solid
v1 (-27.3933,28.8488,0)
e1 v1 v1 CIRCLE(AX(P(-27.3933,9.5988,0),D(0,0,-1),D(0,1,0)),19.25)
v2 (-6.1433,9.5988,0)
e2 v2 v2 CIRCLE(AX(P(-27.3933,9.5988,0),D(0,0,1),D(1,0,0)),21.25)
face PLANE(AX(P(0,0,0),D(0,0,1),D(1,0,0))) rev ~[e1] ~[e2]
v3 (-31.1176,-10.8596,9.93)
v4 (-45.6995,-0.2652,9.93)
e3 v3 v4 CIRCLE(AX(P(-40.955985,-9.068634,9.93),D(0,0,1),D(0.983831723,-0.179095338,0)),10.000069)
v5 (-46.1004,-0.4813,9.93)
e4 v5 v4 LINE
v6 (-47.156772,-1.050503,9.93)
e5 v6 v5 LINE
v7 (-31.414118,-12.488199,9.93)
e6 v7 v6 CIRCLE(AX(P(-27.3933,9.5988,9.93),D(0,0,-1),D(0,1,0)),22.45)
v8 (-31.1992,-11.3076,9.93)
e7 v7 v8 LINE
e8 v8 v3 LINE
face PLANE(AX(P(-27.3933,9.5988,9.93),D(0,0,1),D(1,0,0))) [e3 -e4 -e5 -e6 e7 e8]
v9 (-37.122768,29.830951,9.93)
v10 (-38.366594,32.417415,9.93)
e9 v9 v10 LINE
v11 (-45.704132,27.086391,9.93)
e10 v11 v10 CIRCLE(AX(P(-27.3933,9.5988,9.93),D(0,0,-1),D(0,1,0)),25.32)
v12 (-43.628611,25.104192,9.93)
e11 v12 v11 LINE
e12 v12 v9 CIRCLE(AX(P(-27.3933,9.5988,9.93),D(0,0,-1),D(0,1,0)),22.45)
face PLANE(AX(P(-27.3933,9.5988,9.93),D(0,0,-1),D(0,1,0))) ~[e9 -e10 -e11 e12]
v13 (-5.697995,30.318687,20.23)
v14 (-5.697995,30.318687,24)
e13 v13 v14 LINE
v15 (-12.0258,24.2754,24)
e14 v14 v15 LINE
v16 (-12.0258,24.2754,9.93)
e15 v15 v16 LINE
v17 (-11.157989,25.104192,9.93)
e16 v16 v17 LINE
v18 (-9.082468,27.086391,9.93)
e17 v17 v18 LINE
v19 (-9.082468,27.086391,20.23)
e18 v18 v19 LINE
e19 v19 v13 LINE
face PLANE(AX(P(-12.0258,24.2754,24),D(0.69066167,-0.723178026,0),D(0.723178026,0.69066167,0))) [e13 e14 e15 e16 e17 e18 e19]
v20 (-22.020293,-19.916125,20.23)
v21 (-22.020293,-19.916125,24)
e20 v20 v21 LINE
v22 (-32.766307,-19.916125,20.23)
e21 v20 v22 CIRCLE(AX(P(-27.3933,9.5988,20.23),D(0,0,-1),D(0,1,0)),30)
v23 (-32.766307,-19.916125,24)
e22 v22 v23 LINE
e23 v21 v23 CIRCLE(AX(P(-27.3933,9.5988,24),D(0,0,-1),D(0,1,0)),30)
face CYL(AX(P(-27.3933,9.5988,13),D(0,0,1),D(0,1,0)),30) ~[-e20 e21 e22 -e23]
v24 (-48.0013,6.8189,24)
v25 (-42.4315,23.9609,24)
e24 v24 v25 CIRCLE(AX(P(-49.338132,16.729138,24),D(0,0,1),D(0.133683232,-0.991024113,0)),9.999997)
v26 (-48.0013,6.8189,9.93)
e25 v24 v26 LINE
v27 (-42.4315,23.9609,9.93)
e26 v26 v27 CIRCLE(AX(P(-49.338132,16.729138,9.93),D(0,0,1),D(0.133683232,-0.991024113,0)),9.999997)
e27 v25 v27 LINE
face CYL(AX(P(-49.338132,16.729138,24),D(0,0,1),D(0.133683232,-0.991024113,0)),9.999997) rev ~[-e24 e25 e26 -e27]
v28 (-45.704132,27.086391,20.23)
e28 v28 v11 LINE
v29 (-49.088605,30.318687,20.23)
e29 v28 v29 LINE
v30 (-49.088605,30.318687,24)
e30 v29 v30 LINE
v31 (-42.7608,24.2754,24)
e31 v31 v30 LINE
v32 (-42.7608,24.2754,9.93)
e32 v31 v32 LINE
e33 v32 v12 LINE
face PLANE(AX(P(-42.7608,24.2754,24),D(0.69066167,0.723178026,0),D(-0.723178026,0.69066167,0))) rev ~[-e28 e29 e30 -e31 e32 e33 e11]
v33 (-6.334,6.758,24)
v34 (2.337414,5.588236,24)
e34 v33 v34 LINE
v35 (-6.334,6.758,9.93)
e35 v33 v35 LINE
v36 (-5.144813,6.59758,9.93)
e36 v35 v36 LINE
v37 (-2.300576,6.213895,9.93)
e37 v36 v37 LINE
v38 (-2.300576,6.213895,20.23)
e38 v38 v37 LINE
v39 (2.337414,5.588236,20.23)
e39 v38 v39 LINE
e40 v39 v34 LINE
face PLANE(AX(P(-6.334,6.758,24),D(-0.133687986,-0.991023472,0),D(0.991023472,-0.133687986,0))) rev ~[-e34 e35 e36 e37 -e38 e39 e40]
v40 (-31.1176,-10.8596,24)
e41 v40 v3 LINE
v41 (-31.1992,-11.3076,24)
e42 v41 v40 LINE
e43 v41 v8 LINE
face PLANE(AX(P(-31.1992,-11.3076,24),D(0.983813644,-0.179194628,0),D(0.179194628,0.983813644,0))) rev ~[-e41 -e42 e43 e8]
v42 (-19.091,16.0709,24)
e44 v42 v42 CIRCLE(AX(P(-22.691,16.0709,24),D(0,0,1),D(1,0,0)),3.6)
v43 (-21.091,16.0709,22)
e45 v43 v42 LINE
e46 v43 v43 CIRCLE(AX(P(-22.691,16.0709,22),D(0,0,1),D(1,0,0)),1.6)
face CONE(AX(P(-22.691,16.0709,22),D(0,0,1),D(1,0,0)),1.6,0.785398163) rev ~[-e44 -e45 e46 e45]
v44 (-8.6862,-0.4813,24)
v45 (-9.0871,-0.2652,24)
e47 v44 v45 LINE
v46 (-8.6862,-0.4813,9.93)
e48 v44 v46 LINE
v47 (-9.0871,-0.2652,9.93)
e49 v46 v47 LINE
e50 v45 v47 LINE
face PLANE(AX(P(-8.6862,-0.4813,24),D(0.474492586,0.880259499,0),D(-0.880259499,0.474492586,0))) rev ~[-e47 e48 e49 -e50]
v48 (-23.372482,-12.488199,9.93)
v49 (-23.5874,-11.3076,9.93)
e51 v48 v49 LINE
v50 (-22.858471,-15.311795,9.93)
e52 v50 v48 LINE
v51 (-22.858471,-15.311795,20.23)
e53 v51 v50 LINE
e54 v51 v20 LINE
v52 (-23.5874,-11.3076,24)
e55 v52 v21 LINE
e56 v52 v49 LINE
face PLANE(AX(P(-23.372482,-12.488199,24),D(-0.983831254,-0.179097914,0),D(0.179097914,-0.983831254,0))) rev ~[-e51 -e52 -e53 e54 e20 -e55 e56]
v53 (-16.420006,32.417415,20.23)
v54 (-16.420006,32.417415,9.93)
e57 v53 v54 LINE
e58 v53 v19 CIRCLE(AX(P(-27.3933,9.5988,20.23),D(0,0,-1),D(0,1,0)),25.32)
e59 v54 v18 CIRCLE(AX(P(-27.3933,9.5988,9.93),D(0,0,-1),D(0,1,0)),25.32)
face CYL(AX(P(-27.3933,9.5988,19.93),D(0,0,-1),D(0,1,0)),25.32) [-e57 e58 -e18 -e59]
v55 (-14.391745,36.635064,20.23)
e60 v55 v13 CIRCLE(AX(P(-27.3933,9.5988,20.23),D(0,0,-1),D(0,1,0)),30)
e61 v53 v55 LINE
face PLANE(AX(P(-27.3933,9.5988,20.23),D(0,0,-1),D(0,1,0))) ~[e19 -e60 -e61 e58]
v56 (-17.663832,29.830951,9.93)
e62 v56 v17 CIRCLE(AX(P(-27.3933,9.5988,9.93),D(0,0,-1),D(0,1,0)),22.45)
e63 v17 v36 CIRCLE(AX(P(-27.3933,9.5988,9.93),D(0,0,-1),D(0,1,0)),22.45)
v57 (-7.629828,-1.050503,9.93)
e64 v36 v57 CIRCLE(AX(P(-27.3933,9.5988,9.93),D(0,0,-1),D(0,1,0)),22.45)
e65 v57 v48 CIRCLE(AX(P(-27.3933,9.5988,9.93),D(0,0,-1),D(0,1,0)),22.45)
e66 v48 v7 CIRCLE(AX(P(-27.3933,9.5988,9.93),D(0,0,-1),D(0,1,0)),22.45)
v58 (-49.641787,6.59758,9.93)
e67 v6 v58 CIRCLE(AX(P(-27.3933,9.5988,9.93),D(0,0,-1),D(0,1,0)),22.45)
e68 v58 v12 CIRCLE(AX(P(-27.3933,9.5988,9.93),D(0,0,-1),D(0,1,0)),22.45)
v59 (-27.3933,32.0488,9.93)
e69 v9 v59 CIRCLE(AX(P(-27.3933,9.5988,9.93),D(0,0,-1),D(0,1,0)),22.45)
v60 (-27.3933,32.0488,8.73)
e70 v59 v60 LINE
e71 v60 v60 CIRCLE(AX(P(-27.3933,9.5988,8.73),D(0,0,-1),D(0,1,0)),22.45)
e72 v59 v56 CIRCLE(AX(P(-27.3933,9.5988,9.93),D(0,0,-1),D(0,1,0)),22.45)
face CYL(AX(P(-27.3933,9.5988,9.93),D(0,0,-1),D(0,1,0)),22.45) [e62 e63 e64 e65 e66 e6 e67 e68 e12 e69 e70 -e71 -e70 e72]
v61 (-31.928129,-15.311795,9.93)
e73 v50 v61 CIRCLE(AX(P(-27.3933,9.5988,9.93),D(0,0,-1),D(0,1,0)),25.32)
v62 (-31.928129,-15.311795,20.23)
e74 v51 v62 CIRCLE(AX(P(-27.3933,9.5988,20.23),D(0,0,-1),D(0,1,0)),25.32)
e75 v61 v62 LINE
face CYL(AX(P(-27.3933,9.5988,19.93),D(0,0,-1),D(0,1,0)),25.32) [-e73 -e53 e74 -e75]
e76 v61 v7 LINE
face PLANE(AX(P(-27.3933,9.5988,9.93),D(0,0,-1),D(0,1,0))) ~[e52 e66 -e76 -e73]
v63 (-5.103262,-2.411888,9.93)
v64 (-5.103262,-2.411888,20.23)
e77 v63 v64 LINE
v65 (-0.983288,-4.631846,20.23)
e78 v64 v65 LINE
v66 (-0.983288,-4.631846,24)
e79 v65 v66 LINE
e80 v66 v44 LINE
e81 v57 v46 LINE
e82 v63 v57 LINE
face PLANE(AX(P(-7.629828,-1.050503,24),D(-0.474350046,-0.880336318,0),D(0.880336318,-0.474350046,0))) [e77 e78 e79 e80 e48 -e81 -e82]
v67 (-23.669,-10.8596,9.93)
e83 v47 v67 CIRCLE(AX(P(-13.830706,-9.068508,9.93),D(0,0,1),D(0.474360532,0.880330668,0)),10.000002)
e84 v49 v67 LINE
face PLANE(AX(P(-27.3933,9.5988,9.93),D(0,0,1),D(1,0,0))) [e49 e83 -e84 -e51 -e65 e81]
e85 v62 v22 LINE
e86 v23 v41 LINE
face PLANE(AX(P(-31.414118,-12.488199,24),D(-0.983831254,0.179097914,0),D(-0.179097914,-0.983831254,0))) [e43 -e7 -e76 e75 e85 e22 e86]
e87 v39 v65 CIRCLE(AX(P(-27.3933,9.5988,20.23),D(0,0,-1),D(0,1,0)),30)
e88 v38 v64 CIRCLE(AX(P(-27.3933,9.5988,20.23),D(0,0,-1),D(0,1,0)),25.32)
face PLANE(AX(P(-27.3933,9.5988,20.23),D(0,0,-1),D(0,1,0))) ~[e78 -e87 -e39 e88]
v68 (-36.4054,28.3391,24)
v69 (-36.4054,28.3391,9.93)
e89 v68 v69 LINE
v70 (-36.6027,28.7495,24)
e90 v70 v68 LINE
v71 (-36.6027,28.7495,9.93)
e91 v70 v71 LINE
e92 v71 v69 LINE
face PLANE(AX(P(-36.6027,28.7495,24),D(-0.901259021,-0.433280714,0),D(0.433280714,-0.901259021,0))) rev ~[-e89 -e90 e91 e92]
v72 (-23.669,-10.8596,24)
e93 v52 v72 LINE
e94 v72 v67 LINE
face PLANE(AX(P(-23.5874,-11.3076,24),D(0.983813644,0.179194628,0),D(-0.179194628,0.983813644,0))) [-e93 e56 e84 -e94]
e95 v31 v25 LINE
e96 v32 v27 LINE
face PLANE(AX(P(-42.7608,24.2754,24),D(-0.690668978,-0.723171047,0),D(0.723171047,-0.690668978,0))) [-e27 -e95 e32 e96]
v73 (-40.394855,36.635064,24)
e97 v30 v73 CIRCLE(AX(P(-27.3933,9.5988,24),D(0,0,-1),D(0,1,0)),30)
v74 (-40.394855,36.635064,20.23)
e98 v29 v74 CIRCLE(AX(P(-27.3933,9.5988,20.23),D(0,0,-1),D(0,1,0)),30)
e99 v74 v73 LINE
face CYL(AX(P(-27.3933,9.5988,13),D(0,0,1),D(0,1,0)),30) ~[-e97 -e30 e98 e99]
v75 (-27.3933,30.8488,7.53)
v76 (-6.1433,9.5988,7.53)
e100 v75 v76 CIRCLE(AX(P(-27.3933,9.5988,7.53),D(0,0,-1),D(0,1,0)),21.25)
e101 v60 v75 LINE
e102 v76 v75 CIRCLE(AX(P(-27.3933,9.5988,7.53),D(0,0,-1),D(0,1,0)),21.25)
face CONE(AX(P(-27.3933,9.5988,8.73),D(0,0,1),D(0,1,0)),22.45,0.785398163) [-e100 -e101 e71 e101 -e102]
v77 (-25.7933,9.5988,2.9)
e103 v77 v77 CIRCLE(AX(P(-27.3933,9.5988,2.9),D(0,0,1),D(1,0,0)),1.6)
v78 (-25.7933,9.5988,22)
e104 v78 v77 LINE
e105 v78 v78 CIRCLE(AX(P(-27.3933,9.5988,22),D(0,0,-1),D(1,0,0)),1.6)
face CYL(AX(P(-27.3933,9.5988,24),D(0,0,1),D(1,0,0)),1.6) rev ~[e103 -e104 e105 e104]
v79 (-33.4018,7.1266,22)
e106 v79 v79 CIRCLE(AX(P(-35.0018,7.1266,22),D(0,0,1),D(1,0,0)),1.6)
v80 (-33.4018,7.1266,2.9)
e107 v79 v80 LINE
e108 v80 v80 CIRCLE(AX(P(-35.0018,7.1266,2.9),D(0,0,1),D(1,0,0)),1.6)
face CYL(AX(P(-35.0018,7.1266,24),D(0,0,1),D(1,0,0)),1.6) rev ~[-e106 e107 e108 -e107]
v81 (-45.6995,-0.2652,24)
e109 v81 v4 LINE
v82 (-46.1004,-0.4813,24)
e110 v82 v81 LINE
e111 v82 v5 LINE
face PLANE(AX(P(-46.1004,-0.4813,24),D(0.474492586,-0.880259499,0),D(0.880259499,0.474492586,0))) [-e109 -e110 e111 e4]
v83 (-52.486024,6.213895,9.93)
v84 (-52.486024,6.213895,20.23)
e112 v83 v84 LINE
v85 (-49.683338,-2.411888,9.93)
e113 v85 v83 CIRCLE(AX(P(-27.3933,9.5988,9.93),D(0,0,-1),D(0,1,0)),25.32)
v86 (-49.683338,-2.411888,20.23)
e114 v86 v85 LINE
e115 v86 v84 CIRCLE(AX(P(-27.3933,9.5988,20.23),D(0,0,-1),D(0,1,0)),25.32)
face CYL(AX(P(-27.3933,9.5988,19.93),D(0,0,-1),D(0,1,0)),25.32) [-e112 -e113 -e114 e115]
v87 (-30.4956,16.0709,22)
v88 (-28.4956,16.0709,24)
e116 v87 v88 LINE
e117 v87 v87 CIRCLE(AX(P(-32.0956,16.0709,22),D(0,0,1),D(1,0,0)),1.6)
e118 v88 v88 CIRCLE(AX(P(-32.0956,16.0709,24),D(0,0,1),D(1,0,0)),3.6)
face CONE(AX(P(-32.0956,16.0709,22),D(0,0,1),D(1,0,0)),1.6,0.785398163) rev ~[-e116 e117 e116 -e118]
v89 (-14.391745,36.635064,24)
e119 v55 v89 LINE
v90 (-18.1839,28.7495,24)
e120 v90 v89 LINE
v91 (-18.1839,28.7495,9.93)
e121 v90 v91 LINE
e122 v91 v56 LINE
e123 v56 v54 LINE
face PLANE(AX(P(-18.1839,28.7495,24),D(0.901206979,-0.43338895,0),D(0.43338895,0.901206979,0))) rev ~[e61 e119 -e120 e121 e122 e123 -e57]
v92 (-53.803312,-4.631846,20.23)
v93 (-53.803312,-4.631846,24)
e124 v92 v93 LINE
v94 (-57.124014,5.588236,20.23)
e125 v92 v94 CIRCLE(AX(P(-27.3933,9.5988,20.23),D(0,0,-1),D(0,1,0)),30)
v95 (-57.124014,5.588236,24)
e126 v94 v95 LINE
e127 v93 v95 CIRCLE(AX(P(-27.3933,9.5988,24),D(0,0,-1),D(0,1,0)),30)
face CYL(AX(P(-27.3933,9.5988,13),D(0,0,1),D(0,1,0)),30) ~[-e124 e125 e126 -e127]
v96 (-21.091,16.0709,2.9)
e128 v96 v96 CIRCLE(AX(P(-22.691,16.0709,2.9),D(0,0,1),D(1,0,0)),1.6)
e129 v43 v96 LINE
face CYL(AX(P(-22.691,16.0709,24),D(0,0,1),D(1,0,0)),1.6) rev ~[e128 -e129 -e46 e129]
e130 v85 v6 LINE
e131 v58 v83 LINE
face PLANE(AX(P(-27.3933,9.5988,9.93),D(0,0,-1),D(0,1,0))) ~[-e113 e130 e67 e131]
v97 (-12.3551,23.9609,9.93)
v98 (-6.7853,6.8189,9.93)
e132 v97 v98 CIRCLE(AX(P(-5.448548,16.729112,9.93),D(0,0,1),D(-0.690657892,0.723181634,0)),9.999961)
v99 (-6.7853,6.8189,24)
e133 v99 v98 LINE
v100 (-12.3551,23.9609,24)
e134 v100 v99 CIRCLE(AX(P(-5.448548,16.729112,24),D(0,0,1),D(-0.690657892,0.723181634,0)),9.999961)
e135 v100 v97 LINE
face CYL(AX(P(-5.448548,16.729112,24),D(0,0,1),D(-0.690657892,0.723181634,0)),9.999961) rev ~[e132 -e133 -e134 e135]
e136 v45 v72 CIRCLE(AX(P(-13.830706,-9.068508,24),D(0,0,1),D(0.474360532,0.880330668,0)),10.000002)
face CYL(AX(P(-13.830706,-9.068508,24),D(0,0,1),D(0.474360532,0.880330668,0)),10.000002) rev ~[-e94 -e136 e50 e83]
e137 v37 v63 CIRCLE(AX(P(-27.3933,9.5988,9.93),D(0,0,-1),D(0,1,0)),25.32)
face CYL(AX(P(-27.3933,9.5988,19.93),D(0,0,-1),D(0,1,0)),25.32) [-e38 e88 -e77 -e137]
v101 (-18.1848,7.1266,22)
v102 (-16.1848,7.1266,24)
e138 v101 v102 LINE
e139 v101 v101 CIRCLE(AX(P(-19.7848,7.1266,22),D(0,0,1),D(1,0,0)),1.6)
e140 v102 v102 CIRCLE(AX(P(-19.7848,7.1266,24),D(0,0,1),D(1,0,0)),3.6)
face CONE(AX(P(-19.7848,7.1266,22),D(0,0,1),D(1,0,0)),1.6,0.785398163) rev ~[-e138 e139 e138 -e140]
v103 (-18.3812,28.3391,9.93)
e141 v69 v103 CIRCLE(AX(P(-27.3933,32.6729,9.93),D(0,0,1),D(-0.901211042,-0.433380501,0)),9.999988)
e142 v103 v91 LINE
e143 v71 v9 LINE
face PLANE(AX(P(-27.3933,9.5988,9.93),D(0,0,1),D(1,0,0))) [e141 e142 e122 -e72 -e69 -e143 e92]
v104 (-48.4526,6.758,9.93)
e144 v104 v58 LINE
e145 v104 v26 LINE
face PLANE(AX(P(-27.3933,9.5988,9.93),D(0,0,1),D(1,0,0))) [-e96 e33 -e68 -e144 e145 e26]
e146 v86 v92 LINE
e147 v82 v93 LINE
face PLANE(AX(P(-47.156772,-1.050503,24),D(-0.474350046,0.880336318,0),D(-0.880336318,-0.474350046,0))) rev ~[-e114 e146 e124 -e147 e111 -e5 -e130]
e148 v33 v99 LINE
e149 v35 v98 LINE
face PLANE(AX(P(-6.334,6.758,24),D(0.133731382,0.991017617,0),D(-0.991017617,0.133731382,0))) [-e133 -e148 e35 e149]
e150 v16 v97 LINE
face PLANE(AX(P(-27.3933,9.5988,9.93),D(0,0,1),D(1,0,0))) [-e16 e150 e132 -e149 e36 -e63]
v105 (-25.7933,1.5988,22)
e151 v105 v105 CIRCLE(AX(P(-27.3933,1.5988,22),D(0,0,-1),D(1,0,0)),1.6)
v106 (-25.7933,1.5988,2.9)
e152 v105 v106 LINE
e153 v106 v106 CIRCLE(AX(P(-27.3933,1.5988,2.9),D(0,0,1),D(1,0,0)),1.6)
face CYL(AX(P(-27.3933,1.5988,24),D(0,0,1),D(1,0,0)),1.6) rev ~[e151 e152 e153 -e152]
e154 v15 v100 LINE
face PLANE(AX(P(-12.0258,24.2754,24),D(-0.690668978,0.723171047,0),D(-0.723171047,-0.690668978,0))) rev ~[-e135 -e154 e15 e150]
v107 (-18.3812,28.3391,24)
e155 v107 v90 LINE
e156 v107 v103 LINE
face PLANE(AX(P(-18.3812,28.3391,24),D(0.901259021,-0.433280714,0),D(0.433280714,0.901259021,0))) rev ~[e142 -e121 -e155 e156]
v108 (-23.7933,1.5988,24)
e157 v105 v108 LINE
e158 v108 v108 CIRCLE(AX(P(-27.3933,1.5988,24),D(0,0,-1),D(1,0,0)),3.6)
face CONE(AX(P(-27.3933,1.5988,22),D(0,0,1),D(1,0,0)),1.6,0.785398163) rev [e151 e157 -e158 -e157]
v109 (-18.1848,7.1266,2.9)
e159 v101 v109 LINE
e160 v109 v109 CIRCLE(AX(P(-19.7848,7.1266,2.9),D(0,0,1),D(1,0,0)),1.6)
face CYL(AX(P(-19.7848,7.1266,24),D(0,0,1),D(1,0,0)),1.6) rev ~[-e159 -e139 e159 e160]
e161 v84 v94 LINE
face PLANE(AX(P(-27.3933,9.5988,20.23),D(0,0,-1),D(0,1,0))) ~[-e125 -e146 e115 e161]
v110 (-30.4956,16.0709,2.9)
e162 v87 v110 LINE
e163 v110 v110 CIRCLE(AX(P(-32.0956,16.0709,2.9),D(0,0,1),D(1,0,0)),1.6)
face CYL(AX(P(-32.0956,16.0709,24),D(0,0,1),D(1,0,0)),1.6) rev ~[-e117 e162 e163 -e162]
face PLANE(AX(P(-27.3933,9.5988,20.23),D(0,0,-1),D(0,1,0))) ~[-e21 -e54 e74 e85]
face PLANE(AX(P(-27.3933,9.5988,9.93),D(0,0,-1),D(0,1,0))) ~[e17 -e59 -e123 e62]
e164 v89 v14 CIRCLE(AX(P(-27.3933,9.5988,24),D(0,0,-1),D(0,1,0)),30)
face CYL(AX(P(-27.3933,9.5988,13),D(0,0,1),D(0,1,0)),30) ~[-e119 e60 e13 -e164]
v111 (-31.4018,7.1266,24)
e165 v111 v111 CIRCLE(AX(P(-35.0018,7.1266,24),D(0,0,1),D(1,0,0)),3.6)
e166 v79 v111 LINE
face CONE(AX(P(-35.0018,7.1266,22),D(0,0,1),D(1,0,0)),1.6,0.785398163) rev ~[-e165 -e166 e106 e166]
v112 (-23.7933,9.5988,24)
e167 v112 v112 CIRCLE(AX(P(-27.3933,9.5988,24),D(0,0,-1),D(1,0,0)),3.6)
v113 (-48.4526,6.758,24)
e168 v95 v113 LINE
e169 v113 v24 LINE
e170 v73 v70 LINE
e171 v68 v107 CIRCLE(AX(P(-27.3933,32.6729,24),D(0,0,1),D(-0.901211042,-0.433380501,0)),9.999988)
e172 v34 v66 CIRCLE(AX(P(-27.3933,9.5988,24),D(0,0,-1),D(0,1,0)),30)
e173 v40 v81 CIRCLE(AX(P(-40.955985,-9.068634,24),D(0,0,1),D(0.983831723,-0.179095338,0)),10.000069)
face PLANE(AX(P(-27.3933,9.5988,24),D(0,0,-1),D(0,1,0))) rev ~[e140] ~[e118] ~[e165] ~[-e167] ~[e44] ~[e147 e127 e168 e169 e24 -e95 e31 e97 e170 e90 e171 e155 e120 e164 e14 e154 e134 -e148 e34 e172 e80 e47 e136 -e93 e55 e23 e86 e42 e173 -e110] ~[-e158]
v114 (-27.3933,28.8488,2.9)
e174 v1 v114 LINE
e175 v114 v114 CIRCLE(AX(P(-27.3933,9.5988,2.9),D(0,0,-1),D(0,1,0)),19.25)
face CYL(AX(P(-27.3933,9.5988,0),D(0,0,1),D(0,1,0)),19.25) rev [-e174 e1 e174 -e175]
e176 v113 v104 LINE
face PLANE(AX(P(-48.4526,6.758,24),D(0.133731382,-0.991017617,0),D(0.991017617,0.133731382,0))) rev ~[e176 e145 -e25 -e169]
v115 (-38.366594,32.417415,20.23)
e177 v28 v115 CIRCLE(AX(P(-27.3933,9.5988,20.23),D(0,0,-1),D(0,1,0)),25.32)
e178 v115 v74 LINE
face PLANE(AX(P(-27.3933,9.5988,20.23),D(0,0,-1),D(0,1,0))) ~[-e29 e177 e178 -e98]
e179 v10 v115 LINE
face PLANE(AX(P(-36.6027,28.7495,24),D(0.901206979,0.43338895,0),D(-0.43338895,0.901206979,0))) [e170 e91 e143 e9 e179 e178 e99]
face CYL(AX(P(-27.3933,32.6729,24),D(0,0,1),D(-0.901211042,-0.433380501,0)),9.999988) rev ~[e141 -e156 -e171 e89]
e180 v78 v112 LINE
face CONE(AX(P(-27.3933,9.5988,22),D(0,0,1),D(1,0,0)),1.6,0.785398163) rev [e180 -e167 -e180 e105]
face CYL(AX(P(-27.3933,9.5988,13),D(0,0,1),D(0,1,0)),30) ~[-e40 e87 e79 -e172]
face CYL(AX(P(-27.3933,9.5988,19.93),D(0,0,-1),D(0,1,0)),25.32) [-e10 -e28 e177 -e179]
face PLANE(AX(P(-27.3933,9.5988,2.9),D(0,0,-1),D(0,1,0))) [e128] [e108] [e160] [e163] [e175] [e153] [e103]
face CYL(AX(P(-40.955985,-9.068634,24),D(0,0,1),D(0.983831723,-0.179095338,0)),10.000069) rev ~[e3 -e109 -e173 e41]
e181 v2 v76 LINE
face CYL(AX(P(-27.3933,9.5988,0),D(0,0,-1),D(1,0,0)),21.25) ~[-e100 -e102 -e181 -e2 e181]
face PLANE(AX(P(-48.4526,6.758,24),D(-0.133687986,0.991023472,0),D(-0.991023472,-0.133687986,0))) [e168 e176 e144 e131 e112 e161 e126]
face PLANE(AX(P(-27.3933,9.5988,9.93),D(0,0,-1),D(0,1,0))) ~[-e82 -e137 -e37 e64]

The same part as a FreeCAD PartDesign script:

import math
import FreeCAD as App
import Part
import Sketcher
Q = App.Units.Quantity


def edges_at(feature, points):
    """Names of the edges that pass closest to the given points."""
    edges = feature.Shape.Edges
    near = lambda p: min(range(len(edges)), key=lambda i: edges[i].distToShape(Part.Vertex(*p))[0])
    return sorted({f"Edge{near(p) + 1}" for p in points})


def add_polygon(sketch, points):
    """Adds a closed chain of lines whose ends are joined by coincident constraints."""
    first, n = sketch.GeometryCount, len(points)
    for a, b in zip(points, points[1:] + points[:1]):
        sketch.addGeometry(Part.LineSegment(App.Vector(*a, 0), App.Vector(*b, 0)), False)
    for i in range(n):
        sketch.addConstraint(Sketcher.Constraint("Coincident", first + i, 2, first + (i + 1) % n, 1))

doc = App.newDocument("Part")
body = doc.addObject("PartDesign::Body", "Body")

sketch1 = body.newObject("Sketcher::SketchObject", "Sketch")
sketch1.AttachmentSupport = (doc.getObject("XY_Plane"), [""])
sketch1.MapMode = "FlatFace"
sketch1.addGeometry(Part.Circle(App.Vector(-27, 10, 0), App.Vector(0, 0, 1), 21), False)
sketch1.addConstraint([
    Sketcher.Constraint("Diameter", 0, Q("42.5 mm")),
    Sketcher.Constraint("DistanceX", 0, 3, -1, 1, Q("27.3933 mm")),
    Sketcher.Constraint("DistanceY", -1, 1, 0, 3, Q("9.5988 mm")),
])
pad1 = body.newObject("PartDesign::Pad", "Pad")
pad1.Profile = sketch1
pad1.Length = 13

sketch2 = body.newObject("Sketcher::SketchObject", "Sketch001")
sketch2.AttachmentSupport = (doc.getObject("YZ_Plane"), [""])
sketch2.MapMode = "FlatFace"
sketch2.AttachmentOffset = App.Placement(App.Vector(0, 0, -27.3933), App.Rotation())
add_polygon(sketch2, [(32, 9.9), (32, 8.7), (30.8, 7.5), (30.8, 13), (9.6, 13), (9.6, 24), (39.6, 24), (39.6, 20.2), (34.9, 20.2), (34.9, 9.9)])
sketch2.addGeometry(Part.LineSegment(App.Vector(9.6, 24, 0), App.Vector(9.6, 7.5, 0)), True)
sketch2.addConstraint([
    Sketcher.Constraint("Vertical", 0),
    Sketcher.Constraint("Vertical", 2),
    Sketcher.Constraint("Horizontal", 3),
    Sketcher.Constraint("Vertical", 4),
    Sketcher.Constraint("Horizontal", 5),
    Sketcher.Constraint("Vertical", 6),
    Sketcher.Constraint("Horizontal", 7),
    Sketcher.Constraint("Vertical", 8),
    Sketcher.Constraint("Horizontal", 9),
    Sketcher.Constraint("Vertical", 10),
    Sketcher.Constraint("Coincident", 10, 1, 4, 2),
    Sketcher.Constraint("Horizontal", 1, 2, 10, 2),
    Sketcher.Constraint("DistanceY", 4, 1, 4, 2, Q("11 mm")),
    Sketcher.Constraint("DistanceX", 5, 1, 5, 2, Q("30 mm")),
    Sketcher.Constraint("Angle", 1, Q("-135 deg")),
    Sketcher.Constraint("DistanceY", 0, 2, 0, 1, Q("1.2 mm")),
    Sketcher.Constraint("DistanceY", 8, 2, 8, 1, Q("10.3 mm")),
    Sketcher.Constraint("DistanceY", -1, 1, 2, 2, Q("13 mm")),
    Sketcher.Constraint("DistanceX", 3, 2, 3, 1, Q("21.25 mm")),
    Sketcher.Constraint("DistanceX", 7, 2, 7, 1, Q("4.68 mm")),
    Sketcher.Constraint("DistanceX", 9, 2, 9, 1, Q("2.87 mm")),
    Sketcher.Constraint("DistanceY", 2, 1, 2, 2, Q("5.47 mm")),
    Sketcher.Constraint("DistanceX", -1, 1, 0, 2, Q("32.0488 mm")),
])
revolution = body.newObject("PartDesign::Revolution", "Revolution")
revolution.Profile = sketch2
revolution.ReferenceAxis = (sketch2, ["Axis0"])
revolution.Angle = 360

sketch3 = body.newObject("Sketcher::SketchObject", "Sketch002")
sketch3.AttachmentSupport = (doc.getObject("XY_Plane"), [""])
sketch3.MapMode = "FlatFace"
sketch3.AttachmentOffset = App.Placement(App.Vector(0, 0, 24), App.Rotation())
sketch3.addGeometry([
    Part.LineSegment(App.Vector(-6.334, 6.758, 0), App.Vector(7.2925, 4.9198, 0)),
    Part.ArcOfCircle(Part.Circle(App.Vector(-27.3933, 9.5988, 0), App.Vector(0, 0, 1), 34.999955), math.radians(-7.682635), math.radians(9.440146)),
    Part.LineSegment(App.Vector(7.1327, 15.3394, 0), App.Vector(2.701, 13.8995, 0)),
    Part.ArcOfCircle(Part.Circle(App.Vector(-27.390009, 9.599564, 0), App.Vector(0, 0, 1), 30.396682), math.radians(8.13238), math.radians(27.8687)),
    Part.LineSegment(App.Vector(-0.5187, 23.8084, 0), App.Vector(3.9131, 25.2484, 0)),
    Part.ArcOfCircle(Part.Circle(App.Vector(-27.3933, 9.5988, 0), App.Vector(0, 0, 1), 34.999955), math.radians(26.55978), math.radians(43.682593)),
    Part.LineSegment(App.Vector(-2.0821, 33.772, 0), App.Vector(-12.0258, 24.2754, 0)),
    Part.LineSegment(App.Vector(-12.0258, 24.2754, 0), App.Vector(-12.3551, 23.9609, 0)),
    Part.ArcOfCircle(Part.Circle(App.Vector(-5.4485, 16.7291, 0), App.Vector(0, 0, 1), 10.000003), math.radians(133.682361), math.radians(262.317668)),
    Part.LineSegment(App.Vector(-6.7853, 6.8189, 0), App.Vector(-6.334, 6.758, 0)),
    Part.LineSegment(App.Vector(-18.1839, 28.7495, 0), App.Vector(-12.2248, 41.1411, 0)),
    Part.ArcOfCircle(Part.Circle(App.Vector(-27.3933, 9.5988, 0), App.Vector(0, 0, 1), 34.999955), math.radians(64.317382), math.radians(81.44028)),
    Part.LineSegment(App.Vector(-22.1839, 44.2089, 0), App.Vector(-22.1839, 39.5491, 0)),
    Part.ArcOfCircle(Part.Circle(App.Vector(-27.3933, 9.5988, 0), App.Vector(0, 0, 1), 30.399972), math.radians(80.132982), math.radians(99.867018)),
    Part.LineSegment(App.Vector(-32.6027, 39.5491, 0), App.Vector(-32.6027, 44.2089, 0)),
    Part.ArcOfCircle(Part.Circle(App.Vector(-27.3933, 9.5988, 0), App.Vector(0, 0, 1), 35.000061), math.radians(98.55972), math.radians(115.682618)),
    Part.LineSegment(App.Vector(-42.5618, 41.1411, 0), App.Vector(-36.6027, 28.7495, 0)),
    Part.LineSegment(App.Vector(-36.6027, 28.7495, 0), App.Vector(-36.4054, 28.3391, 0)),
    Part.ArcOfCircle(Part.Circle(App.Vector(-27.3933, 32.6729, 0), App.Vector(0, 0, 1), 9.999988), math.radians(-154.317713), math.radians(-25.682287)),
    Part.LineSegment(App.Vector(-18.3812, 28.3391, 0), App.Vector(-18.1839, 28.7495, 0)),
    Part.LineSegment(App.Vector(3.4184, -7.0036, 0), App.Vector(-8.6862, -0.4813, 0)),
    Part.LineSegment(App.Vector(-8.6862, -0.4813, 0), App.Vector(-9.0871, -0.2652, 0)),
    Part.ArcOfCircle(Part.Circle(App.Vector(-13.8307, -9.0686, 0), App.Vector(0, 0, 1), 10.00008), math.radians(61.682558), math.radians(190.317351)),
    Part.LineSegment(App.Vector(-23.669, -10.8596, 0), App.Vector(-23.5874, -11.3076, 0)),
    Part.LineSegment(App.Vector(-23.5874, -11.3076, 0), App.Vector(-21.1248, -24.8353, 0)),
    Part.ArcOfCircle(Part.Circle(App.Vector(-27.3933, 9.5988, 0), App.Vector(0, 0, 1), 34.999978), math.radians(-79.682664), math.radians(-62.559764)),
    Part.LineSegment(App.Vector(-11.2645, -21.4634, 0), App.Vector(-14.0035, -17.6936, 0)),
    Part.ArcOfCircle(Part.Circle(App.Vector(-27.3933, 9.5988, 0), App.Vector(0, 0, 1), 30.399948), math.radians(-63.86718), math.radians(-44.13291)),
    Part.LineSegment(App.Vector(-5.5744, -11.5695, 0), App.Vector(-2.8354, -15.3394, 0)),
    Part.ArcOfCircle(Part.Circle(App.Vector(-27.3933, 9.5988, 0), App.Vector(0, 0, 1), 34.999955), math.radians(-45.44022), math.radians(-28.317309)),
    Part.LineSegment(App.Vector(-42.7608, 24.2754, 0), App.Vector(-52.7045, 33.772, 0)),
    Part.ArcOfCircle(Part.Circle(App.Vector(-27.3933, 9.5988, 0), App.Vector(0, 0, 1), 35.000061), math.radians(136.317407), math.radians(153.44022)),
    Part.LineSegment(App.Vector(-58.6997, 25.2484, 0), App.Vector(-54.2679, 23.8084, 0)),
    Part.ArcOfCircle(Part.Circle(App.Vector(-27.390188, 9.597483, 0), App.Vector(0, 0, 1), 30.403315), math.radians(152.133475), math.radians(171.865445)),
    Part.LineSegment(App.Vector(-57.4876, 13.8995, 0), App.Vector(-61.9193, 15.3394, 0)),
    Part.ArcOfCircle(Part.Circle(App.Vector(-27.3933, 9.5988, 0), App.Vector(0, 0, 1), 35.000061), math.radians(170.559854), math.radians(187.682635)),
    Part.LineSegment(App.Vector(-62.0791, 4.9198, 0), App.Vector(-48.4526, 6.758, 0)),
    Part.LineSegment(App.Vector(-48.4526, 6.758, 0), App.Vector(-48.0013, 6.8189, 0)),
    Part.ArcOfCircle(Part.Circle(App.Vector(-49.3381, 16.7291, 0), App.Vector(0, 0, 1), 9.999955), math.radians(-82.317668), math.radians(46.317639)),
    Part.LineSegment(App.Vector(-42.4315, 23.9609, 0), App.Vector(-42.7608, 24.2754, 0)),
    Part.LineSegment(App.Vector(-33.6618, -24.8353, 0), App.Vector(-31.1992, -11.3076, 0)),
    Part.LineSegment(App.Vector(-31.1992, -11.3076, 0), App.Vector(-31.1176, -10.8596, 0)),
    Part.ArcOfCircle(Part.Circle(App.Vector(-40.9559, -9.0686, 0), App.Vector(0, 0, 1), 9.999991), math.radians(-10.317351), math.radians(118.317442)),
    Part.LineSegment(App.Vector(-45.6995, -0.2652, 0), App.Vector(-46.1004, -0.4813, 0)),
    Part.LineSegment(App.Vector(-46.1004, -0.4813, 0), App.Vector(-58.205, -7.0036, 0)),
    Part.ArcOfCircle(Part.Circle(App.Vector(-27.3933, 9.5988, 0), App.Vector(0, 0, 1), 35.000061), math.radians(-151.682691), math.radians(-134.55978)),
    Part.LineSegment(App.Vector(-51.9512, -15.3394, 0), App.Vector(-49.2122, -11.5695, 0)),
    Part.ArcOfCircle(Part.Circle(App.Vector(-27.3933, 9.5988, 0), App.Vector(0, 0, 1), 30.400048), math.radians(-135.86709), math.radians(-116.13282)),
    Part.LineSegment(App.Vector(-40.7831, -17.6936, 0), App.Vector(-43.5221, -21.4634, 0)),
    Part.ArcOfCircle(Part.Circle(App.Vector(-27.3933, 9.5988, 0), App.Vector(0, 0, 1), 34.999978), math.radians(-117.440236), math.radians(-100.317336)),
], False)
sketch3.addConstraint([
    Sketcher.Constraint("Coincident", 0, 2, 1, 1),
    Sketcher.Constraint("Coincident", 1, 2, 2, 1),
    Sketcher.Constraint("Coincident", 2, 2, 3, 1),
    Sketcher.Constraint("Coincident", 3, 2, 4, 1),
    Sketcher.Constraint("Coincident", 4, 2, 5, 1),
    Sketcher.Constraint("Coincident", 5, 2, 6, 1),
    Sketcher.Constraint("Coincident", 6, 2, 7, 1),
    Sketcher.Constraint("Coincident", 7, 2, 8, 1),
    Sketcher.Constraint("Coincident", 8, 2, 9, 1),
    Sketcher.Constraint("Coincident", 9, 2, 0, 1),
    Sketcher.Constraint("Coincident", 10, 2, 11, 1),
    Sketcher.Constraint("Coincident", 11, 2, 12, 1),
    Sketcher.Constraint("Coincident", 12, 2, 13, 1),
    Sketcher.Constraint("Coincident", 13, 2, 14, 1),
    Sketcher.Constraint("Coincident", 14, 2, 15, 1),
    Sketcher.Constraint("Coincident", 15, 2, 16, 1),
    Sketcher.Constraint("Coincident", 16, 2, 17, 1),
    Sketcher.Constraint("Coincident", 17, 2, 18, 1),
    Sketcher.Constraint("Coincident", 18, 2, 19, 1),
    Sketcher.Constraint("Coincident", 19, 2, 10, 1),
    Sketcher.Constraint("Coincident", 20, 2, 21, 1),
    Sketcher.Constraint("Coincident", 21, 2, 22, 1),
    Sketcher.Constraint("Coincident", 22, 2, 23, 1),
    Sketcher.Constraint("Coincident", 23, 2, 24, 1),
    Sketcher.Constraint("Coincident", 24, 2, 25, 1),
    Sketcher.Constraint("Coincident", 25, 2, 26, 1),
    Sketcher.Constraint("Coincident", 26, 2, 27, 1),
    Sketcher.Constraint("Coincident", 27, 2, 28, 1),
    Sketcher.Constraint("Coincident", 28, 2, 29, 1),
    Sketcher.Constraint("Coincident", 29, 2, 20, 1),
    Sketcher.Constraint("Coincident", 30, 2, 31, 1),
    Sketcher.Constraint("Coincident", 31, 2, 32, 1),
    Sketcher.Constraint("Coincident", 32, 2, 33, 1),
    Sketcher.Constraint("Coincident", 33, 2, 34, 1),
    Sketcher.Constraint("Coincident", 34, 2, 35, 1),
    Sketcher.Constraint("Coincident", 35, 2, 36, 1),
    Sketcher.Constraint("Coincident", 36, 2, 37, 1),
    Sketcher.Constraint("Coincident", 37, 2, 38, 1),
    Sketcher.Constraint("Coincident", 38, 2, 39, 1),
    Sketcher.Constraint("Coincident", 39, 2, 30, 1),
    Sketcher.Constraint("Coincident", 40, 2, 41, 1),
    Sketcher.Constraint("Coincident", 41, 2, 42, 1),
    Sketcher.Constraint("Coincident", 42, 2, 43, 1),
    Sketcher.Constraint("Coincident", 43, 2, 44, 1),
    Sketcher.Constraint("Coincident", 44, 2, 45, 1),
    Sketcher.Constraint("Coincident", 45, 2, 46, 1),
    Sketcher.Constraint("Coincident", 46, 2, 47, 1),
    Sketcher.Constraint("Coincident", 47, 2, 48, 1),
    Sketcher.Constraint("Coincident", 48, 2, 49, 1),
    Sketcher.Constraint("Coincident", 49, 2, 40, 1),
    Sketcher.Constraint("Vertical", 12),
    Sketcher.Constraint("Vertical", 14),
    Sketcher.Constraint("Coincident", 5, 3, 1, 3),
    Sketcher.Constraint("Coincident", 11, 3, 1, 3),
    Sketcher.Constraint("Coincident", 13, 3, 1, 3),
    Sketcher.Constraint("Coincident", 15, 3, 1, 3),
    Sketcher.Constraint("Coincident", 25, 3, 1, 3),
    Sketcher.Constraint("Coincident", 27, 3, 1, 3),
    Sketcher.Constraint("Coincident", 29, 3, 1, 3),
    Sketcher.Constraint("Coincident", 31, 3, 1, 3),
    Sketcher.Constraint("Coincident", 35, 3, 1, 3),
    Sketcher.Constraint("Coincident", 45, 3, 1, 3),
    Sketcher.Constraint("Coincident", 47, 3, 1, 3),
    Sketcher.Constraint("Coincident", 49, 3, 1, 3),
    Sketcher.Constraint("Radius", 8, Q("10 mm")),
    Sketcher.Constraint("Radius", 18, Q("10 mm")),
    Sketcher.Constraint("Radius", 22, Q("10 mm")),
    Sketcher.Constraint("Radius", 38, Q("10 mm")),
    Sketcher.Constraint("Radius", 42, Q("10 mm")),
    Sketcher.Constraint("Radius", 1, Q("35 mm")),
    Sketcher.Constraint("Radius", 5, Q("35 mm")),
    Sketcher.Constraint("Radius", 11, Q("35 mm")),
    Sketcher.Constraint("Radius", 15, Q("35 mm")),
    Sketcher.Constraint("Radius", 25, Q("35 mm")),
    Sketcher.Constraint("Radius", 29, Q("35 mm")),
    Sketcher.Constraint("Radius", 31, Q("35 mm")),
    Sketcher.Constraint("Radius", 35, Q("35 mm")),
    Sketcher.Constraint("Radius", 45, Q("35 mm")),
    Sketcher.Constraint("Radius", 49, Q("35 mm")),
    Sketcher.Constraint("Radius", 13, Q("30.4 mm")),
    Sketcher.Constraint("Radius", 27, Q("30.4 mm")),
    Sketcher.Constraint("Radius", 47, Q("30.4 mm")),
    Sketcher.Constraint("Radius", 3, Q("30.3967 mm")),
    Sketcher.Constraint("Radius", 33, Q("30.4033 mm")),
    Sketcher.Constraint("Distance", 0, Q("13.75 mm")),
    Sketcher.Constraint("Distance", 6, Q("13.75 mm")),
    Sketcher.Constraint("Distance", 10, Q("13.75 mm")),
    Sketcher.Constraint("Distance", 16, Q("13.75 mm")),
    Sketcher.Constraint("Distance", 20, Q("13.75 mm")),
    Sketcher.Constraint("Distance", 24, Q("13.75 mm")),
    Sketcher.Constraint("Distance", 30, Q("13.75 mm")),
    Sketcher.Constraint("Distance", 36, Q("13.75 mm")),
    Sketcher.Constraint("Distance", 40, Q("13.75 mm")),
    Sketcher.Constraint("Distance", 44, Q("13.75 mm")),
    Sketcher.Constraint("DistanceX", 3, 3, -1, 1, Q("27.39 mm")),
    Sketcher.Constraint("DistanceY", 12, 2, 12, 1, Q("4.6598 mm")),
    Sketcher.Constraint("DistanceY", 14, 1, 14, 2, Q("4.6598 mm")),
    Sketcher.Constraint("DistanceY", -1, 1, 8, 3, Q("16.729 mm")),
    Sketcher.Constraint("DistanceY", -1, 1, 18, 3, Q("32.673 mm")),
    Sketcher.Constraint("DistanceX", 38, 3, -1, 1, Q("49.338 mm")),
    Sketcher.Constraint("DistanceY", -1, 1, 38, 3, Q("16.729 mm")),
    Sketcher.Constraint("DistanceX", 42, 3, -1, 1, Q("40.956 mm")),
    Sketcher.Constraint("DistanceX", -1, 1, 2, 2, Q("2.701 mm")),
    Sketcher.Constraint("DistanceX", -1, 1, 4, 2, Q("3.913 mm")),
    Sketcher.Constraint("DistanceY", -1, 1, 5, 2, Q("33.772 mm")),
    Sketcher.Constraint("DistanceX", 7, 2, -1, 1, Q("12.355 mm")),
    Sketcher.Constraint("DistanceY", -1, 1, 7, 2, Q("23.961 mm")),
    Sketcher.Constraint("DistanceX", 9, 2, -1, 1, Q("6.334 mm")),
    Sketcher.Constraint("DistanceY", -1, 1, 9, 2, Q("6.758 mm")),
    Sketcher.Constraint("DistanceY", -1, 1, 10, 2, Q("41.141 mm")),
    Sketcher.Constraint("DistanceY", -1, 1, 11, 2, Q("44.209 mm")),
    Sketcher.Constraint("DistanceY", -1, 1, 17, 2, Q("28.339 mm")),
    Sketcher.Constraint("DistanceY", -1, 1, 18, 2, Q("28.339 mm")),
    Sketcher.Constraint("DistanceX", 19, 2, -1, 1, Q("18.184 mm")),
    Sketcher.Constraint("DistanceX", 21, 2, -1, 1, Q("9.087 mm")),
    Sketcher.Constraint("DistanceX", 22, 2, -1, 1, Q("23.669 mm")),
    Sketcher.Constraint("DistanceY", -1, 1, 30, 2, Q("33.772 mm")),
    Sketcher.Constraint("DistanceX", 32, 2, -1, 1, Q("54.268 mm")),
    Sketcher.Constraint("DistanceY", -1, 1, 36, 2, Q("6.758 mm")),
    Sketcher.Constraint("DistanceY", -1, 1, 37, 2, Q("6.819 mm")),
    Sketcher.Constraint("DistanceX", 44, 2, -1, 1, Q("58.205 mm")),
    Sketcher.Constraint("DistanceX", 47, 2, -1, 1, Q("40.783 mm")),
    Sketcher.Constraint("DistanceX", 48, 2, -1, 1, Q("43.522 mm")),
    Sketcher.Constraint("Distance", 2, Q("4.6598 mm")),
    Sketcher.Constraint("Distance", 4, Q("4.6599 mm")),
    Sketcher.Constraint("Distance", 9, Q("0.4554 mm")),
    Sketcher.Constraint("Distance", 17, Q("0.4554 mm")),
    Sketcher.Constraint("Distance", 21, Q("0.4554 mm")),
    Sketcher.Constraint("Distance", 23, Q("0.4554 mm")),
    Sketcher.Constraint("Distance", 26, Q("4.6598 mm")),
    Sketcher.Constraint("Distance", 28, Q("4.6599 mm")),
    Sketcher.Constraint("Distance", 32, Q("4.6599 mm")),
    Sketcher.Constraint("Distance", 34, Q("4.6598 mm")),
    Sketcher.Constraint("Distance", 39, Q("0.4554 mm")),
    Sketcher.Constraint("Distance", 41, Q("0.4554 mm")),
    Sketcher.Constraint("Distance", 43, Q("0.4554 mm")),
    Sketcher.Constraint("Distance", 46, Q("4.6599 mm")),
    Sketcher.Constraint("DistanceY", -1, 1, 3, 3, Q("9.5996 mm")),
    Sketcher.Constraint("DistanceX", 33, 3, -1, 1, Q("27.3902 mm")),
    Sketcher.Constraint("DistanceY", -1, 1, 33, 3, Q("9.5975 mm")),
    Sketcher.Constraint("DistanceY", 42, 3, -1, 1, Q("9.0686 mm")),
    Sketcher.Constraint("DistanceX", -1, 1, 0, 2, Q("7.2925 mm")),
    Sketcher.Constraint("DistanceX", 6, 2, -1, 1, Q("12.0258 mm")),
    Sketcher.Constraint("DistanceX", 15, 2, -1, 1, Q("42.5618 mm")),
    Sketcher.Constraint("DistanceX", 16, 2, -1, 1, Q("36.6027 mm")),
    Sketcher.Constraint("DistanceX", 20, 2, -1, 1, Q("8.6862 mm")),
    Sketcher.Constraint("DistanceX", 23, 2, -1, 1, Q("23.5874 mm")),
    Sketcher.Constraint("DistanceX", 24, 2, -1, 1, Q("21.1248 mm")),
    Sketcher.Constraint("DistanceX", 25, 2, -1, 1, Q("11.2645 mm")),
    Sketcher.Constraint("DistanceX", 27, 2, -1, 1, Q("5.5745 mm")),
    Sketcher.Constraint("DistanceX", -1, 1, 29, 2, Q("3.4184 mm")),
    Sketcher.Constraint("DistanceX", 33, 2, -1, 1, Q("57.4876 mm")),
    Sketcher.Constraint("DistanceX", 35, 2, -1, 1, Q("62.0792 mm")),
    Sketcher.Constraint("DistanceX", 39, 2, -1, 1, Q("42.7608 mm")),
    Sketcher.Constraint("DistanceX", 40, 2, -1, 1, Q("31.1992 mm")),
    Sketcher.Constraint("DistanceX", 43, 2, -1, 1, Q("46.1004 mm")),
    Sketcher.Constraint("DistanceX", 45, 2, -1, 1, Q("51.9512 mm")),
    Sketcher.Constraint("DistanceX", 49, 2, -1, 1, Q("33.6618 mm")),
])
pocket1 = body.newObject("PartDesign::Pocket", "Pocket")
pocket1.Profile = sketch3
pocket1.Length = 14.07

sketch4 = body.newObject("Sketcher::SketchObject", "Sketch003")
sketch4.AttachmentSupport = (doc.getObject("YZ_Plane"), [""])
sketch4.MapMode = "FlatFace"
sketch4.AttachmentOffset = App.Placement(App.Vector(0, 0, -27.3933), App.Rotation())
add_polygon(sketch4, [(9.6, 0), (9.6, 2.9), (28.8, 2.9), (28.8, 0)])
sketch4.addGeometry(Part.LineSegment(App.Vector(9.6, 2.9, 0), App.Vector(9.6, 0, 0)), True)
sketch4.addConstraint([
    Sketcher.Constraint("Vertical", 0),
    Sketcher.Constraint("Horizontal", 1),
    Sketcher.Constraint("Vertical", 2),
    Sketcher.Constraint("Horizontal", 3),
    Sketcher.Constraint("Vertical", 4),
    Sketcher.Constraint("Coincident", 4, 1, 0, 2),
    Sketcher.Constraint("PointOnObject", 2, 2, -1),
    Sketcher.Constraint("PointOnObject", 4, 2, -1),
    Sketcher.Constraint("DistanceY", 0, 1, 0, 2, Q("2.9 mm")),
    Sketcher.Constraint("DistanceX", 1, 1, 1, 2, Q("19.25 mm")),
    Sketcher.Constraint("DistanceX", -1, 1, 0, 2, Q("9.5988 mm")),
])
groove = body.newObject("PartDesign::Groove", "Groove")
groove.Profile = sketch4
groove.ReferenceAxis = (sketch4, ["Axis0"])
groove.Angle = 360

sketch5 = body.newObject("Sketcher::SketchObject", "Sketch004")
sketch5.AttachmentSupport = (doc.getObject("XY_Plane"), [""])
sketch5.MapMode = "FlatFace"
sketch5.AttachmentOffset = App.Placement(App.Vector(0, 0, 24), App.Rotation())
sketch5.addGeometry([
    Part.Circle(App.Vector(-27.4, 9.6, 0), App.Vector(0, 0, 1), 1.6),
    Part.Circle(App.Vector(-27.4, 1.6, 0), App.Vector(0, 0, 1), 1.6),
    Part.Circle(App.Vector(-19.8, 7.1, 0), App.Vector(0, 0, 1), 1.6),
    Part.Circle(App.Vector(-22.7, 16.1, 0), App.Vector(0, 0, 1), 1.6),
    Part.Circle(App.Vector(-32.1, 16.1, 0), App.Vector(0, 0, 1), 1.6),
    Part.Circle(App.Vector(-35, 7.1, 0), App.Vector(0, 0, 1), 1.6),
], False)
sketch5.addConstraint([
    Sketcher.Constraint("Equal", 0, 1),
    Sketcher.Constraint("Equal", 1, 2),
    Sketcher.Constraint("Equal", 2, 3),
    Sketcher.Constraint("Equal", 3, 4),
    Sketcher.Constraint("Equal", 4, 5),
    Sketcher.Constraint("Horizontal", 3, 3, 4, 3),
    Sketcher.Constraint("Horizontal", 2, 3, 5, 3),
    Sketcher.Constraint("Vertical", 0, 3, 1, 3),
    Sketcher.Constraint("Diameter", 0, Q("3.2 mm")),
    Sketcher.Constraint("DistanceY", 1, 3, 0, 3, Q("8 mm")),
    Sketcher.Constraint("DistanceX", 3, 3, -1, 1, Q("22.691 mm")),
    Sketcher.Constraint("DistanceY", -1, 1, 3, 3, Q("16.071 mm")),
    Sketcher.Constraint("DistanceY", 0, 3, 3, 3, Q("6.472 mm")),
    Sketcher.Constraint("DistanceX", 5, 3, 2, 3, Q("15.217 mm")),
    Sketcher.Constraint("DistanceX", 0, 3, -1, 1, Q("27.3933 mm")),
    Sketcher.Constraint("DistanceX", 2, 3, -1, 1, Q("19.7848 mm")),
    Sketcher.Constraint("DistanceY", -1, 1, 2, 3, Q("7.1266 mm")),
    Sketcher.Constraint("DistanceX", 4, 3, -1, 1, Q("32.0956 mm")),
])
pocket2 = body.newObject("PartDesign::Pocket", "Pocket001")
pocket2.Profile = sketch5
pocket2.Length = 30
doc.recompute()

chamfer = body.newObject("PartDesign::Chamfer", "Chamfer")
chamfer.Base = (pocket2, edges_at(pocket2, [
    (-28.993, 1.599, 24),
    (-36.602, 7.127, 24),
    (-33.696, 16.071, 24),
    (-28.993, 9.599, 24),
    (-24.291, 16.071, 24),
    (-21.385, 7.127, 24),
]))
chamfer.Size = 2

doc.recompute()
